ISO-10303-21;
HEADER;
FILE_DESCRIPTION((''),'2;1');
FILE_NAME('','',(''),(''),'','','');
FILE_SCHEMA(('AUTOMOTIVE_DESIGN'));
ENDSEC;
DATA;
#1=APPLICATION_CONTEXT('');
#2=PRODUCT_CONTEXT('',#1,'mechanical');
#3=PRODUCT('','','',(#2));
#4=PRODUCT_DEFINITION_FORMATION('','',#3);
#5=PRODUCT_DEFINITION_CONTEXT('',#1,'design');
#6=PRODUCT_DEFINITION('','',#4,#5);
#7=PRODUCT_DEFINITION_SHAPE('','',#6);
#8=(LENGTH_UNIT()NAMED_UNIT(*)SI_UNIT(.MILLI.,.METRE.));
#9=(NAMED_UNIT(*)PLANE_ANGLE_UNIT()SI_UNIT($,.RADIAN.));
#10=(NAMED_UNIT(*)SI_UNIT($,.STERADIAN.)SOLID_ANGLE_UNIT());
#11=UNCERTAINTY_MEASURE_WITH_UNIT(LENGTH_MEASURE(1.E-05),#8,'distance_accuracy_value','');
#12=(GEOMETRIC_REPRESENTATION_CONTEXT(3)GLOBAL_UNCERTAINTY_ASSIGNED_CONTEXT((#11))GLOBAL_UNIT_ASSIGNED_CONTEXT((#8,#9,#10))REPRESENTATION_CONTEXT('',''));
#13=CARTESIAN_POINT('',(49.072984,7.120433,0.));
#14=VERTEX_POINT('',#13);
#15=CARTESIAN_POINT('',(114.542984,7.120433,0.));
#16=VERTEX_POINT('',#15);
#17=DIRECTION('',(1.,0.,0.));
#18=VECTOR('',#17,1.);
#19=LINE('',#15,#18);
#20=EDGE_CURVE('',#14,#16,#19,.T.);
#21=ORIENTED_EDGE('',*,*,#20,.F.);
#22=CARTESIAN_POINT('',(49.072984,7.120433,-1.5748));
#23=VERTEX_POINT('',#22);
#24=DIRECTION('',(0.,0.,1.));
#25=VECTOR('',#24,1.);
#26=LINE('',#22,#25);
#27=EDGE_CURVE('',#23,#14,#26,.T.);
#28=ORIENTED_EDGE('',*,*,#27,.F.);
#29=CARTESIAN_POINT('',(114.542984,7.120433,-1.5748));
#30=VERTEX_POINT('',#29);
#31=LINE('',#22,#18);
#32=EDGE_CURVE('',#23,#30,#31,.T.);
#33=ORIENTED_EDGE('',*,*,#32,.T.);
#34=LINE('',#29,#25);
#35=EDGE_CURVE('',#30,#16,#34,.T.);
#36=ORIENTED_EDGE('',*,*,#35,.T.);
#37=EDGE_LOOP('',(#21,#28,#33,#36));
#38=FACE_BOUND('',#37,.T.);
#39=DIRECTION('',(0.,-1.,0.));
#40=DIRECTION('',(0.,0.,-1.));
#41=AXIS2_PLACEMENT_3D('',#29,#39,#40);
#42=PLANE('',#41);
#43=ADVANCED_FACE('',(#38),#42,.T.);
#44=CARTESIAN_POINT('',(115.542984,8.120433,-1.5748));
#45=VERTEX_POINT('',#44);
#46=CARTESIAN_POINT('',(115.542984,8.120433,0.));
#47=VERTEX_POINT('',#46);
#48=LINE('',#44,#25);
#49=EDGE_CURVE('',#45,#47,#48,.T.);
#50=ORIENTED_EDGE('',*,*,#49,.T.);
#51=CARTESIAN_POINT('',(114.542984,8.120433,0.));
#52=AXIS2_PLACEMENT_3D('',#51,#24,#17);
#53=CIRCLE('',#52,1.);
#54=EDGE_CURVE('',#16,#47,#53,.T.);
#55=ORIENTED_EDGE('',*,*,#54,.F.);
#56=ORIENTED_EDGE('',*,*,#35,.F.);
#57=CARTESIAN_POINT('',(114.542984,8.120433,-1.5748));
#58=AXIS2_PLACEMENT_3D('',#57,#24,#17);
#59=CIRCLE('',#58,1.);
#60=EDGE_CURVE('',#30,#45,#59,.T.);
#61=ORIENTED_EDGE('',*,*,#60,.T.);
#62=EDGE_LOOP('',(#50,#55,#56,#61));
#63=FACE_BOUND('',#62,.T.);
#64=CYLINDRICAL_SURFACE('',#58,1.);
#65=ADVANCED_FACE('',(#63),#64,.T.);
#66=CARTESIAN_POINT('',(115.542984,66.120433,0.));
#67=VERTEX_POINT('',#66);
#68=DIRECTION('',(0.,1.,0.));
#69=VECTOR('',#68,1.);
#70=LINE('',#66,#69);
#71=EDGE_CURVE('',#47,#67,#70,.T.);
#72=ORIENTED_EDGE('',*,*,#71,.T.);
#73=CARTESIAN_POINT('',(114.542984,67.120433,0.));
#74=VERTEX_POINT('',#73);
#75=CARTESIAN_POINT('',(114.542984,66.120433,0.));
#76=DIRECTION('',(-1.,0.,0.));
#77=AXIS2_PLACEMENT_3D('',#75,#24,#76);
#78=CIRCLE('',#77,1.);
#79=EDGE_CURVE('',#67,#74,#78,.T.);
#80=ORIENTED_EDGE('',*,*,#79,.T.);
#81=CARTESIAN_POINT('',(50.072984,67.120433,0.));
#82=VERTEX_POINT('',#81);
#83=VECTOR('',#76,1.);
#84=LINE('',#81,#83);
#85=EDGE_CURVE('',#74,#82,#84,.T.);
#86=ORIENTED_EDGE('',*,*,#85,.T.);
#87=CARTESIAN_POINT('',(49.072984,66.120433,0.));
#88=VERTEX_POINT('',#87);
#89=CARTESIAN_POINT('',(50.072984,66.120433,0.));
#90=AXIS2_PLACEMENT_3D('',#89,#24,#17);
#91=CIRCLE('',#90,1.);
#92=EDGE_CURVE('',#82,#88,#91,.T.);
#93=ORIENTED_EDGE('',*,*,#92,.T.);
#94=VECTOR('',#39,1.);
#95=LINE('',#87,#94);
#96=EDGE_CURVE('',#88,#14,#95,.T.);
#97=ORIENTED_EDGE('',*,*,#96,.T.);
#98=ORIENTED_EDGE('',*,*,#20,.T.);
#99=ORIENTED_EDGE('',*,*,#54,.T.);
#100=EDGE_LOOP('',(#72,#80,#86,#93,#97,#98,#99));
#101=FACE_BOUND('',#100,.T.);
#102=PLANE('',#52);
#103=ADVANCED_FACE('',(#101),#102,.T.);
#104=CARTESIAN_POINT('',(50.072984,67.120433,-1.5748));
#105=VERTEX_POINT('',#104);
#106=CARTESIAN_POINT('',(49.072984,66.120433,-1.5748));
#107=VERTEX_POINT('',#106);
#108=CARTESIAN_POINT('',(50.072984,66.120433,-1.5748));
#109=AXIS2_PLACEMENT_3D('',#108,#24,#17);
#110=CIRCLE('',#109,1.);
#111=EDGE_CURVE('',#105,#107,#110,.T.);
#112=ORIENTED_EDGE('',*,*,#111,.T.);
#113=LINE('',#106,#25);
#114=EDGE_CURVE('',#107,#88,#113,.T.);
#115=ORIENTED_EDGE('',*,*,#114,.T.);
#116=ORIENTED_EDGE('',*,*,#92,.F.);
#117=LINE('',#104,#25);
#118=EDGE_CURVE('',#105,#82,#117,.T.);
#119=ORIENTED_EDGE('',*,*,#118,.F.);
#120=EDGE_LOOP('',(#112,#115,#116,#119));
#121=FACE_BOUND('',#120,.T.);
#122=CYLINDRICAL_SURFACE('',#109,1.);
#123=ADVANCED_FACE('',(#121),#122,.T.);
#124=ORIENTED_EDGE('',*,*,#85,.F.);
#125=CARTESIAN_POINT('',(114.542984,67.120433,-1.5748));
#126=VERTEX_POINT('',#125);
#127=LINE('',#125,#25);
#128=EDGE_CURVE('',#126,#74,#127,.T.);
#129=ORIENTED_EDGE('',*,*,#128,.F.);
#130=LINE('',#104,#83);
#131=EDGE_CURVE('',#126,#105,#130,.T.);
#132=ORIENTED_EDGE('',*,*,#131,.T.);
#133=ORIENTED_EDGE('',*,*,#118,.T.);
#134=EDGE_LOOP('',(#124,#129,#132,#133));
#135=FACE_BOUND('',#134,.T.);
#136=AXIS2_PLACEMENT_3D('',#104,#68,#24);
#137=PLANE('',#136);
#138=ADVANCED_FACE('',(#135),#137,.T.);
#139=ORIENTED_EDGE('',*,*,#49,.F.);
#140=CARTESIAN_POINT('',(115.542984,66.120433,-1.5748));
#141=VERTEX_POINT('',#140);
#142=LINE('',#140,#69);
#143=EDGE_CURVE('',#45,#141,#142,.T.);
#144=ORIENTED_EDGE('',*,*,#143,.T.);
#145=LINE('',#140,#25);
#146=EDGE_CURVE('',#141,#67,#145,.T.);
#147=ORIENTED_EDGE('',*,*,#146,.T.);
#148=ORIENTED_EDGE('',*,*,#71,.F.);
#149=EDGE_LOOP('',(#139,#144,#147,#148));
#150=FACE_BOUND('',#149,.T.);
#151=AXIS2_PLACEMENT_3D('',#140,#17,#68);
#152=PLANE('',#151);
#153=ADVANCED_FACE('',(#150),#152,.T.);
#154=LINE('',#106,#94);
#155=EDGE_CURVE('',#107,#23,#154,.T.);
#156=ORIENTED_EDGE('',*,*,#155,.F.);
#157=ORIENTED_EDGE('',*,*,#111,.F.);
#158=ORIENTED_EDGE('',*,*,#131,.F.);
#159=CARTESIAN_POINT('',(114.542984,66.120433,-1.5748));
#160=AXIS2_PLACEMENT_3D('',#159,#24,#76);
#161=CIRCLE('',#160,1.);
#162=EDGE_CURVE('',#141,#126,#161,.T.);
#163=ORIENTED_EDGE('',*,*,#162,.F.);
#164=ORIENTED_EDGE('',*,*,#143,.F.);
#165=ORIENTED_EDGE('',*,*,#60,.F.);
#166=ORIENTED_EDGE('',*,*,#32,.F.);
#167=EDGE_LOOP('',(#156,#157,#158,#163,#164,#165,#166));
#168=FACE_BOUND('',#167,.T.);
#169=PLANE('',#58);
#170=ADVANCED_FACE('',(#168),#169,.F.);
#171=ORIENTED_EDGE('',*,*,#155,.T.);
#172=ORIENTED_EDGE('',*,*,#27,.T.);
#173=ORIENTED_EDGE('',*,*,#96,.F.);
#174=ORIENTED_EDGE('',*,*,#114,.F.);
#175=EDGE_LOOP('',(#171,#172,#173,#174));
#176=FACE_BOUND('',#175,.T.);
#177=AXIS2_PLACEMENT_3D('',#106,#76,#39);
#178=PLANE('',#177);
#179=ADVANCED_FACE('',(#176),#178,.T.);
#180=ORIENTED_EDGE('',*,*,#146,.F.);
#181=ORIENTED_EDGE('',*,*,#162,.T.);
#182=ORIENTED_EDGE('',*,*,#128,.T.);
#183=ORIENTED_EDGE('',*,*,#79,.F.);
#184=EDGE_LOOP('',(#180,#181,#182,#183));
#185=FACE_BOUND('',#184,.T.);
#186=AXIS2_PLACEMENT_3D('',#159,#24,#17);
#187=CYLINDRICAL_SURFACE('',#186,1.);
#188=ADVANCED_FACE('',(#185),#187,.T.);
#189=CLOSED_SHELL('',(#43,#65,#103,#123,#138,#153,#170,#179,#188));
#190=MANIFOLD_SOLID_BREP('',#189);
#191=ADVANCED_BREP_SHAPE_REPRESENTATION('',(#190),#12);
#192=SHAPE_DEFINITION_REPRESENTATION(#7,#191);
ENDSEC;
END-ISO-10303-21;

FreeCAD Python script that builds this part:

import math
import FreeCAD as App
import Part
import Sketcher

V = App.Vector
Q = App.Units.Quantity

doc = App.newDocument("Part")
params = doc.addObject("Spreadsheet::Sheet", "Params")
for row, (alias, value) in enumerate([
    ("sketch1_radius", "1 mm"),
    ("sketch1_height", "58 mm"),
    ("sketch1_width", "65.47 mm"),
    ("pad1_length", "1.5748 mm"),
], start=1):
    params.set(f"A{row}", alias)
    params.set(f"B{row}", "=" + value)
    params.setAlias(f"B{row}", alias)

body = doc.addObject("PartDesign::Body", "Body")

sketch1 = body.newObject("Sketcher::SketchObject", "Sketch")
sketch1.AttachmentSupport = (doc.getObject("XY_Plane"), [""])
sketch1.MapMode = "FlatFace"
sketch1.addGeometry(Part.LineSegment(V(49.072984, 7.120433, 0), V(114.542984, 7.120433, 0)), False)
sketch1.addGeometry(Part.ArcOfCircle(Part.Circle(V(114.542984, 8.120433, 0), V(0, 0, 1), 1), math.radians(-90), math.radians(0)), False)
sketch1.addGeometry(Part.LineSegment(V(115.542984, 8.120433, 0), V(115.542984, 66.120433, 0)), False)
sketch1.addGeometry(Part.ArcOfCircle(Part.Circle(V(114.542984, 66.120433, 0), V(0, 0, 1), 1), math.radians(0), math.radians(90)), False)
sketch1.addGeometry(Part.LineSegment(V(114.542984, 67.120433, 0), V(50.072984, 67.120433, 0)), False)
sketch1.addGeometry(Part.ArcOfCircle(Part.Circle(V(50.072984, 66.120433, 0), V(0, 0, 1), 1), math.radians(90), math.radians(180)), False)
sketch1.addGeometry(Part.LineSegment(V(49.072984, 66.120433, 0), V(49.072984, 7.120433, 0)), False)
sketch1.addConstraint(Sketcher.Constraint("Tangent", 0, 2, 1, 1))
sketch1.addConstraint(Sketcher.Constraint("Tangent", 1, 2, 2, 1))
sketch1.addConstraint(Sketcher.Constraint("Tangent", 2, 2, 3, 1))
sketch1.addConstraint(Sketcher.Constraint("Tangent", 3, 2, 4, 1))
sketch1.addConstraint(Sketcher.Constraint("Tangent", 4, 2, 5, 1))
sketch1.addConstraint(Sketcher.Constraint("Tangent", 5, 2, 6, 1))
sketch1.addConstraint(Sketcher.Constraint("Coincident", 6, 2, 0, 1))
sketch1.addConstraint(Sketcher.Constraint("Horizontal", 0))
sketch1.addConstraint(Sketcher.Constraint("Vertical", 2))
sketch1.addConstraint(Sketcher.Constraint("Horizontal", 4))
sketch1.addConstraint(Sketcher.Constraint("Vertical", 6))
sketch1.addConstraint(Sketcher.Constraint("Equal", 1, 3))
sketch1.addConstraint(Sketcher.Constraint("Equal", 3, 5))
sketch1.addConstraint(Sketcher.Constraint("Radius", 1, Q("1 mm")))
sketch1.addConstraint(Sketcher.Constraint("DistanceY", 2, 1, 2, 2, Q("58 mm")))
sketch1.addConstraint(Sketcher.Constraint("DistanceX", 0, 1, 0, 2, Q("65.47 mm")))
sketch1.addConstraint(Sketcher.Constraint("DistanceX", -1, 1, 1, 3, Q("114.542984 mm")))
sketch1.addConstraint(Sketcher.Constraint("DistanceY", -1, 1, 1, 3, Q("8.120433 mm")))
sketch1.setExpression("Constraints[13]", "Params.sketch1_radius")
sketch1.setExpression("Constraints[14]", "Params.sketch1_height")
sketch1.setExpression("Constraints[15]", "Params.sketch1_width")
pad1 = body.newObject("PartDesign::Pad", "Pad")
pad1.Profile = sketch1
pad1.setExpression("Length", "Params.pad1_length")
pad1.Reversed = True

doc.recompute()
